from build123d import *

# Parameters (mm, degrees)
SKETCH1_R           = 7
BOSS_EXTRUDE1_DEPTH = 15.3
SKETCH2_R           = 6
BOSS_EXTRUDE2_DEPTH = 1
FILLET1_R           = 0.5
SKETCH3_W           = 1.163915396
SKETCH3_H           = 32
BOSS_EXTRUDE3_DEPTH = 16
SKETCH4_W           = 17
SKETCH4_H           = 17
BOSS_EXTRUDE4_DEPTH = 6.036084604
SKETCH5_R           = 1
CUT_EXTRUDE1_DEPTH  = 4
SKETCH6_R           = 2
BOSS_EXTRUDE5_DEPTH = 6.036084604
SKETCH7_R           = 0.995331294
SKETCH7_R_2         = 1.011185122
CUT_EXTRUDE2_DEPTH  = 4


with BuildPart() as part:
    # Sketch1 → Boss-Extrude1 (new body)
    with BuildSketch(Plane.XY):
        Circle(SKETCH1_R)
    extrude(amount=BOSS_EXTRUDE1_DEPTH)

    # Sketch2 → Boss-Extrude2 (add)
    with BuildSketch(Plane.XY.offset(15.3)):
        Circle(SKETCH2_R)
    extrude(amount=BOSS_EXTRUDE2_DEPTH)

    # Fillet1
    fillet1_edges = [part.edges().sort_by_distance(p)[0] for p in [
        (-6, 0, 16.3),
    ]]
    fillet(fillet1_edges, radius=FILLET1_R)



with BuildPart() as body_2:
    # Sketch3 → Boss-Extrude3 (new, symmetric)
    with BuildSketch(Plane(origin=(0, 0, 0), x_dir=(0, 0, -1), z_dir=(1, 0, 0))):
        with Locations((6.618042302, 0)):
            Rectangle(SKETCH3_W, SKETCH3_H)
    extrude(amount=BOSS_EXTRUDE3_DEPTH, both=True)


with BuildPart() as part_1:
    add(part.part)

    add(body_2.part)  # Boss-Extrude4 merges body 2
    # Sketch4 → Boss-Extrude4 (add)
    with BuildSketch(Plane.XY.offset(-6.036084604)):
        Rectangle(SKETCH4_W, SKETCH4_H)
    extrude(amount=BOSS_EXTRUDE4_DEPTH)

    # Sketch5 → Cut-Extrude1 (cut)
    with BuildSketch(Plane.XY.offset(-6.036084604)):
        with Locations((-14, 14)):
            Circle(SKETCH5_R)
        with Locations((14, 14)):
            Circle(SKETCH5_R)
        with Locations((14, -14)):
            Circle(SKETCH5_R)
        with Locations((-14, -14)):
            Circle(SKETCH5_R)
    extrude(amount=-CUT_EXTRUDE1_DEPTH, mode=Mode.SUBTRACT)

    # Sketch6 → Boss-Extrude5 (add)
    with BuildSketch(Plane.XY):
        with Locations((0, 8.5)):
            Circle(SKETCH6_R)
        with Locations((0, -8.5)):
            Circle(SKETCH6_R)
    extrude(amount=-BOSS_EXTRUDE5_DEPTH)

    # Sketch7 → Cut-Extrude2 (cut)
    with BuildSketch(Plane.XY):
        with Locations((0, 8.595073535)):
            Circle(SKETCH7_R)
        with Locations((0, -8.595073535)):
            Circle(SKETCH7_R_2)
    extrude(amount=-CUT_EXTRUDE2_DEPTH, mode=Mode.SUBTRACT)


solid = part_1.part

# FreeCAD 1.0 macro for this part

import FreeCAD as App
import Part
import Sketcher
from FreeCAD import Vector
Q = App.Units.Quantity


def edges_at(feature, points):
    """Names of the edges that pass closest to the given points."""
    edges = feature.Shape.Edges
    near = lambda p: min(range(len(edges)), key=lambda i: edges[i].distToShape(Part.Vertex(*p))[0])
    return sorted({f"Edge{near(p) + 1}" for p in points})


def add_polygon(sketch, points):
    """Adds a closed chain of lines whose ends are joined by coincident constraints."""
    first, n = sketch.GeometryCount, len(points)
    for a, b in zip(points, points[1:] + points[:1]):
        sketch.addGeometry(Part.LineSegment(App.Vector(*a, 0), App.Vector(*b, 0)), False)
    for i in range(n):
        sketch.addConstraint(Sketcher.Constraint("Coincident", first + i, 2, first + (i + 1) % n, 1))

doc = App.newDocument("Part")
params = doc.addObject("Spreadsheet::Sheet", "Params")
for row, (alias, value) in enumerate([
    ("sketch1_diameter", "14 mm"),
    ("pad1_length", "15.3 mm"),
    ("sketch2_diameter", "12 mm"),
    ("pad2_length", "1 mm"),
    ("fillet_radius", "0.5 mm"),
    ("sketch3_width", "32 mm"),
    ("pad3_length", "32 mm"),
    ("sketch4_width", "17 mm"),
    ("pad4_length", "6.036085 mm"),
    ("sketch5_diameter", "2 mm"),
    ("pocket1_length", "4 mm"),
    ("sketch6_diameter", "4 mm"),
    ("pad5_length", "6.036085 mm"),
    ("pocket2_length", "4 mm"),
], start=1):
    params.set(f"A{row}", alias)
    params.set(f"B{row}", "=" + value)
    params.setAlias(f"B{row}", alias)

body = doc.addObject("PartDesign::Body", "Body")

# Sketch on XY plane
sketch1 = doc.addObject("Sketcher::SketchObject", "Sketch")
body.addObject(sketch1)
sketch1.AttachmentSupport = (doc.XY_Plane, [""])
sketch1.MapMode = "FlatFace"
sketch1.addGeometry(Part.Circle(Vector(0, 0, 0), Vector(0, 0, 1), 7), False)
sketch1.addConstraint(Sketcher.Constraint("Coincident", 0, 3, -1, 1))
sketch1.addConstraint(Sketcher.Constraint("Diameter", 0, Q("14 mm")))
sketch1.setExpression("Constraints[1]", "Params.sketch1_diameter")
pad1 = doc.addObject("PartDesign::Pad", "Pad")
body.addObject(pad1)
pad1.Profile = sketch1
pad1.setExpression("Length", "Params.pad1_length")

# Sketch on XY plane
sketch2 = doc.addObject("Sketcher::SketchObject", "Sketch001")
body.addObject(sketch2)
sketch2.AttachmentSupport = (doc.XY_Plane, [""])
sketch2.MapMode = "FlatFace"
sketch2.AttachmentOffset = App.Placement(Vector(0, 0, 15.3), App.Rotation())
sketch2.addGeometry(Part.Circle(Vector(0, 0, 0), Vector(0, 0, 1), 6), False)
sketch2.addConstraint(Sketcher.Constraint("Coincident", 0, 3, -1, 1))
sketch2.addConstraint(Sketcher.Constraint("Diameter", 0, Q("12 mm")))
sketch2.setExpression("Constraints[1]", "Params.sketch2_diameter")
pad2 = doc.addObject("PartDesign::Pad", "Pad001")
body.addObject(pad2)
pad2.Profile = sketch2
pad2.setExpression("Length", "Params.pad2_length")
doc.recompute()

fillet = doc.addObject("PartDesign::Fillet", "Fillet")
body.addObject(fillet)
fillet.Base = (pad2, edges_at(pad2, [(-6, 0, 16.3)]))
fillet.setExpression("Radius", "Params.fillet_radius")
body2 = doc.addObject("PartDesign::Body", "Body001")

# Sketch on YZ plane
sketch3 = doc.addObject("Sketcher::SketchObject", "Sketch002")
body2.addObject(sketch3)
sketch3.AttachmentSupport = (doc.getObject("YZ_Plane001"), [""])
sketch3.MapMode = "FlatFace"
add_polygon(sketch3, [(16, -6), (-16, -6), (-16, -7.2), (16, -7.2)])  # lines 0-3
sketch3.addConstraint(Sketcher.Constraint("Horizontal", 0))
sketch3.addConstraint(Sketcher.Constraint("Vertical", 1))
sketch3.addConstraint(Sketcher.Constraint("Horizontal", 2))
sketch3.addConstraint(Sketcher.Constraint("Vertical", 3))
sketch3.addConstraint(Sketcher.Constraint("DistanceX", 0, 2, 0, 1, Q("32 mm")))
sketch3.addConstraint(Sketcher.Constraint("DistanceX", 0, 2, -1, 1, Q("16 mm")))
sketch3.addConstraint(Sketcher.Constraint("DistanceY", 1, 2, -1, 1, Q("7.2 mm")))
sketch3.addConstraint(Sketcher.Constraint("DistanceY", 1, 2, 1, 1, Q("1.163915 mm")))
sketch3.setExpression("Constraints[8]", "Params.sketch3_width")
pad3 = doc.addObject("PartDesign::Pad", "Pad002")
body2.addObject(pad3)
pad3.Profile = sketch3
pad3.setExpression("Length", "Params.pad3_length")
pad3.Midplane = True
body.AllowCompound = True
doc.recompute()

boolean = doc.addObject("PartDesign::Boolean", "Boolean")
body.addObject(boolean)
boolean.Type = "Fuse"
boolean.addObjects([body2])

# Sketch on XY plane
sketch4 = doc.addObject("Sketcher::SketchObject", "Sketch003")
body.addObject(sketch4)
sketch4.AttachmentSupport = (doc.XY_Plane, [""])
sketch4.MapMode = "FlatFace"
sketch4.AttachmentOffset = App.Placement(Vector(0, 0, -6.036085), App.Rotation())
add_polygon(sketch4, [(-8, 8), (-8, -8), (8, -8), (8, 8)])  # lines 0-3
sketch4.addConstraint(Sketcher.Constraint("Vertical", 0))
sketch4.addConstraint(Sketcher.Constraint("Horizontal", 1))
sketch4.addConstraint(Sketcher.Constraint("Vertical", 2))
sketch4.addConstraint(Sketcher.Constraint("Horizontal", 3))
sketch4.addConstraint(Sketcher.Constraint("Symmetric", 0, 2, 2, 2, -1, 1))
sketch4.addConstraint(Sketcher.Constraint("Equal", 3, 0))
sketch4.addConstraint(Sketcher.Constraint("DistanceX", 1, 1, 1, 2, Q("17 mm")))
sketch4.setExpression("Constraints[10]", "Params.sketch4_width")
pad4 = doc.addObject("PartDesign::Pad", "Pad003")
body.addObject(pad4)
pad4.Profile = sketch4
pad4.setExpression("Length", "Params.pad4_length")

# Sketch on XY plane
sketch5 = doc.addObject("Sketcher::SketchObject", "Sketch004")
body.addObject(sketch5)
sketch5.AttachmentSupport = (doc.XY_Plane, [""])
sketch5.MapMode = "FlatFace"
sketch5.AttachmentOffset = App.Placement(Vector(0, 0, -6.036085), App.Rotation())
sketch5.addGeometry(Part.Circle(Vector(-14, 14, 0), Vector(0, 0, 1), 1), False)
sketch5.addGeometry(Part.Circle(Vector(14, 14, 0), Vector(0, 0, 1), 1), False)
sketch5.addGeometry(Part.Circle(Vector(14, -14, 0), Vector(0, 0, 1), 1), False)
sketch5.addGeometry(Part.Circle(Vector(-14, -14, 0), Vector(0, 0, 1), 1), False)
sketch5.addConstraint(Sketcher.Constraint("Equal", 0, 1))
sketch5.addConstraint(Sketcher.Constraint("Equal", 1, 2))
sketch5.addConstraint(Sketcher.Constraint("Equal", 2, 3))
sketch5.addConstraint(Sketcher.Constraint("Symmetric", 0, 3, 2, 3, -1, 1))
sketch5.addConstraint(Sketcher.Constraint("Symmetric", 1, 3, 3, 3, -1, 1))
sketch5.addConstraint(Sketcher.Constraint("Symmetric", 0, 3, 1, 3, -2))
sketch5.addConstraint(Sketcher.Constraint("Diameter", 0, Q("2 mm")))
sketch5.addConstraint(Sketcher.Constraint("DistanceX", 0, 3, -1, 1, Q("14 mm")))
sketch5.addConstraint(Sketcher.Constraint("DistanceY", -1, 1, 0, 3, Q("14 mm")))
sketch5.setExpression("Constraints[6]", "Params.sketch5_diameter")
pocket1 = doc.addObject("PartDesign::Pocket", "Pocket")
body.addObject(pocket1)
pocket1.Profile = sketch5
pocket1.setExpression("Length", "Params.pocket1_length")

# Sketch on XY plane
sketch6 = doc.addObject("Sketcher::SketchObject", "Sketch005")
body.addObject(sketch6)
sketch6.AttachmentSupport = (doc.XY_Plane, [""])
sketch6.MapMode = "FlatFace"
sketch6.addGeometry(Part.Circle(Vector(0, 8.5, 0), Vector(0, 0, 1), 2), False)
sketch6.addGeometry(Part.Circle(Vector(0, -8.5, 0), Vector(0, 0, 1), 2), False)
sketch6.addConstraint(Sketcher.Constraint("Equal", 0, 1))
sketch6.addConstraint(Sketcher.Constraint("Symmetric", 0, 3, 1, 3, -1, 1))
sketch6.addConstraint(Sketcher.Constraint("PointOnObject", 0, 3, -2))
sketch6.addConstraint(Sketcher.Constraint("Diameter", 0, Q("4 mm")))
sketch6.addConstraint(Sketcher.Constraint("DistanceY", 1, 3, 0, 3, Q("17 mm")))
sketch6.setExpression("Constraints[3]", "Params.sketch6_diameter")
pad5 = doc.addObject("PartDesign::Pad", "Pad004")
body.addObject(pad5)
pad5.Profile = sketch6
pad5.setExpression("Length", "Params.pad5_length")
pad5.Reversed = True

# Sketch on XY plane
sketch7 = doc.addObject("Sketcher::SketchObject", "Sketch006")
body.addObject(sketch7)
sketch7.AttachmentSupport = (doc.XY_Plane, [""])
sketch7.MapMode = "FlatFace"
sketch7.addGeometry(Part.Circle(Vector(0, 8.6, 0), Vector(0, 0, 1), 1), False)
sketch7.addGeometry(Part.Circle(Vector(0, -8.6, 0), Vector(0, 0, 1), 1), False)
sketch7.addConstraint(Sketcher.Constraint("Symmetric", 0, 3, 1, 3, -1, 1))
sketch7.addConstraint(Sketcher.Constraint("PointOnObject", 0, 3, -2))
sketch7.addConstraint(Sketcher.Constraint("Diameter", 1, Q("2.02237 mm")))
sketch7.addConstraint(Sketcher.Constraint("Diameter", 0, Q("1.990663 mm")))
sketch7.addConstraint(Sketcher.Constraint("DistanceY", -1, 1, 0, 3, Q("8.595074 mm")))
pocket2 = doc.addObject("PartDesign::Pocket", "Pocket001")
body.addObject(pocket2)
pocket2.Profile = sketch7
pocket2.setExpression("Length", "Params.pocket2_length")

doc.recompute()
